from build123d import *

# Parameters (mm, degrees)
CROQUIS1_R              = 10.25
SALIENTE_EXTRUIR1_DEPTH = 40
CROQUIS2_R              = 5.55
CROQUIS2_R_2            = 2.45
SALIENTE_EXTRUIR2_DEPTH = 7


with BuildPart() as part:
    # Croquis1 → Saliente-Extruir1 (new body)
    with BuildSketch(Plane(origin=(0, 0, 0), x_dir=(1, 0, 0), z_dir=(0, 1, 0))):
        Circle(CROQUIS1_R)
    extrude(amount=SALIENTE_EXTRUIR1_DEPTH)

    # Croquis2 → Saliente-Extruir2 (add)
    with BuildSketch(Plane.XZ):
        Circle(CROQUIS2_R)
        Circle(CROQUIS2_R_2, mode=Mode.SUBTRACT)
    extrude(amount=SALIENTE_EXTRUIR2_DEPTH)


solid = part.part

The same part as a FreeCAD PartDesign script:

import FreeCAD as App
import Part
import Sketcher
from FreeCAD import Vector

doc = App.newDocument("Part")
body = doc.addObject("PartDesign::Body", "Body")

sketch1 = doc.addObject("Sketcher::SketchObject", "Sketch")
body.addObject(sketch1)
sketch1.AttachmentSupport = (doc.XZ_Plane, [""])
sketch1.MapMode = "FlatFace"
sketch1.addGeometry(Part.Circle(Vector(0, 0, 0), Vector(0, 0, 1), 10), False)
sketch1.addConstraint(Sketcher.Constraint("Coincident", 0, 3, -1, 1))
sketch1.addConstraint(Sketcher.Constraint("Diameter", 0, 20.5))
pad1 = doc.addObject("PartDesign::Pad", "Pad")
body.addObject(pad1)
pad1.Profile = sketch1
pad1.Length = 40
pad1.Reversed = True

sketch2 = doc.addObject("Sketcher::SketchObject", "Sketch001")
body.addObject(sketch2)
sketch2.AttachmentSupport = (doc.XZ_Plane, [""])
sketch2.MapMode = "FlatFace"
sketch2.addGeometry(Part.Circle(Vector(0, 0, 0), Vector(0, 0, 1), 5.5), False)
sketch2.addGeometry(Part.Circle(Vector(0, 0, 0), Vector(0, 0, 1), 2.5), False)
sketch2.addConstraint(Sketcher.Constraint("Coincident", 0, 3, -1, 1))
sketch2.addConstraint(Sketcher.Constraint("Coincident", 1, 3, -1, 1))
sketch2.addConstraint(Sketcher.Constraint("Diameter", 0, 11.1))
sketch2.addConstraint(Sketcher.Constraint("Diameter", 1, 4.9))
pad2 = doc.addObject("PartDesign::Pad", "Pad001")
body.addObject(pad2)
pad2.Profile = sketch2
pad2.Length = 7

doc.recompute()
